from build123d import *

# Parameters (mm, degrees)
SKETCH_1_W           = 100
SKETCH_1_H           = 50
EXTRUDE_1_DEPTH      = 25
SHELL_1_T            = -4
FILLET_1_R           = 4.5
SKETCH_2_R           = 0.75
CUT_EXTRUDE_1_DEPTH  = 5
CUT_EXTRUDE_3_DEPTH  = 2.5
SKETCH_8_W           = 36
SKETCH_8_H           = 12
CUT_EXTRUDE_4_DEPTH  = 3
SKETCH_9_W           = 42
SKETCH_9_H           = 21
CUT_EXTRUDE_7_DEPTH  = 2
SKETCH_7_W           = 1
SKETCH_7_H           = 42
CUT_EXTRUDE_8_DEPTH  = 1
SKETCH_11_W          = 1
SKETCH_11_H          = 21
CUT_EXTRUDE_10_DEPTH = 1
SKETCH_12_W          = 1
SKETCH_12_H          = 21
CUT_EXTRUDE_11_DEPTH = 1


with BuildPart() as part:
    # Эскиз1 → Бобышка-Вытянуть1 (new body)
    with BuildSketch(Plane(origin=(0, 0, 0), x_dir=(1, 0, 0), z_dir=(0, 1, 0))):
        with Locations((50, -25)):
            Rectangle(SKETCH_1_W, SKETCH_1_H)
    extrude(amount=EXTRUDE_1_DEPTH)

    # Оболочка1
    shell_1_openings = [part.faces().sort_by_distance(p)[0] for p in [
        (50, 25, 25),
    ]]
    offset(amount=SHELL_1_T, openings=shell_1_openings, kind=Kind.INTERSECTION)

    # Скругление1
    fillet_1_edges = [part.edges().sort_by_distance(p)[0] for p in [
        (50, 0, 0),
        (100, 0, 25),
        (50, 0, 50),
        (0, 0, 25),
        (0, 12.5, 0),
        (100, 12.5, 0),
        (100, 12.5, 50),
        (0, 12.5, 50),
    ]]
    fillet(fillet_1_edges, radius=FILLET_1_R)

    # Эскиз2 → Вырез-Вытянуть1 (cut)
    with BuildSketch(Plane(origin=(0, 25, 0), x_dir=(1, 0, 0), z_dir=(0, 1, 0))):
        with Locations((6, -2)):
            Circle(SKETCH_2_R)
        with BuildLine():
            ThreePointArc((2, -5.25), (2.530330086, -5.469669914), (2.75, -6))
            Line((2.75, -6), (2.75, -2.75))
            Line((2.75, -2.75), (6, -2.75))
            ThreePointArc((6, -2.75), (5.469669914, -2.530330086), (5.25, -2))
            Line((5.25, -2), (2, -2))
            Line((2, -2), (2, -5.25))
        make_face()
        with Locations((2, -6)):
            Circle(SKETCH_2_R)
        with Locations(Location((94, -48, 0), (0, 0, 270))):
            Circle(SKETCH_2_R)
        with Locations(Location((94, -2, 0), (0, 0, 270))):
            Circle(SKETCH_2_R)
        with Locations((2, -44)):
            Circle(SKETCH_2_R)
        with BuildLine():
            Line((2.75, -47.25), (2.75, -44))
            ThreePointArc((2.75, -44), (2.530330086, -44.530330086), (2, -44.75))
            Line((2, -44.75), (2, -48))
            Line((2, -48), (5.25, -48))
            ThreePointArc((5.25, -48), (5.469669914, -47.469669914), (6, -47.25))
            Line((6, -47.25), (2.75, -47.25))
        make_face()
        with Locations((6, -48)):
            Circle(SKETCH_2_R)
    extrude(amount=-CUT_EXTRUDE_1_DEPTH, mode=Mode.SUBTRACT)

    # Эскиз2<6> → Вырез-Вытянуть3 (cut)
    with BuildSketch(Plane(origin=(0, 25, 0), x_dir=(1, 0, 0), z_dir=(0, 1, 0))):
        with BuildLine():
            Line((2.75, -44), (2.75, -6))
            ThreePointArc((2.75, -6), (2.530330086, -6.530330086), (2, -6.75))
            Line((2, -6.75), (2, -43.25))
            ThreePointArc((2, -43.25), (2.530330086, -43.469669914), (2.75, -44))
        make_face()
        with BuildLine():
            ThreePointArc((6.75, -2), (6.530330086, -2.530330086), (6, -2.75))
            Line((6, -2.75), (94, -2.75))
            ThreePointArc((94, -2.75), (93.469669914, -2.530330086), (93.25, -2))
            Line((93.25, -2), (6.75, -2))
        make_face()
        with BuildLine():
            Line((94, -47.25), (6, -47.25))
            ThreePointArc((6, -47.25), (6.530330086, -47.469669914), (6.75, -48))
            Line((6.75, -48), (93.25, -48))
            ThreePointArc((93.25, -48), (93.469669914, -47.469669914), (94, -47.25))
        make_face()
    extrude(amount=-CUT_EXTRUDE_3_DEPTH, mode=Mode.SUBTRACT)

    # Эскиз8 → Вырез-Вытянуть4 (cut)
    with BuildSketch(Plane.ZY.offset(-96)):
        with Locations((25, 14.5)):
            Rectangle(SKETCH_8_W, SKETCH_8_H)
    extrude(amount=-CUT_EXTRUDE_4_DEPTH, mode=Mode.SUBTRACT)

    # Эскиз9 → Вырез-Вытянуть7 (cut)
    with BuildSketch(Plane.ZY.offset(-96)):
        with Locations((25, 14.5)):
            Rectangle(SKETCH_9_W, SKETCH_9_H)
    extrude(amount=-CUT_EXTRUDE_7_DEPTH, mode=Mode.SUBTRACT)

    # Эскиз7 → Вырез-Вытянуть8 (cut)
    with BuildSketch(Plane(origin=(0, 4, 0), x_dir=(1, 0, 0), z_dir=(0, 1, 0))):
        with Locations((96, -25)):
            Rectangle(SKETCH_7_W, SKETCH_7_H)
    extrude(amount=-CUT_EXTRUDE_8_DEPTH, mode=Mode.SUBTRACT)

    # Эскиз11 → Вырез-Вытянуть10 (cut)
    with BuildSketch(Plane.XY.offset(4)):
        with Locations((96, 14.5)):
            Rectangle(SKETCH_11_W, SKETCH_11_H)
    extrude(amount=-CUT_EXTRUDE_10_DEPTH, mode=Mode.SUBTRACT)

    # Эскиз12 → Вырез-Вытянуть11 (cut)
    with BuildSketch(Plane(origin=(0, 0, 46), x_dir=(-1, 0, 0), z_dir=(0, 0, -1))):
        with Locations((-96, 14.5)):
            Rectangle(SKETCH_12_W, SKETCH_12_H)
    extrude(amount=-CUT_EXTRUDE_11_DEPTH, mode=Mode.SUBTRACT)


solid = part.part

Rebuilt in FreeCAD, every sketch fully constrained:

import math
import FreeCAD as App
import Part
import Sketcher

V = App.Vector


def edges_at(feature, points):
    """Names of the edges that pass closest to the given points."""
    edges = feature.Shape.Edges
    near = lambda p: min(range(len(edges)), key=lambda i: edges[i].distToShape(Part.Vertex(*p))[0])
    return sorted({f"Edge{near(p) + 1}" for p in points})


def faces_at(feature, points):
    """Names of the faces that lie closest to the given points."""
    faces = feature.Shape.Faces
    near = lambda p: min(range(len(faces)), key=lambda i: faces[i].distToShape(Part.Vertex(*p))[0])
    return sorted({f"Face{near(p) + 1}" for p in points})

doc = App.newDocument("Part")
body = doc.addObject("PartDesign::Body", "Body")

sketch1 = body.newObject("Sketcher::SketchObject", "Sketch")
sketch1.AttachmentSupport = (doc.getObject("XZ_Plane"), [""])
sketch1.MapMode = "FlatFace"
sketch1.addGeometry([
    Part.LineSegment(V(0, 0, 0), V(0, 50, 0)),
    Part.LineSegment(V(0, 50, 0), V(100, 50, 0)),
    Part.LineSegment(V(100, 50, 0), V(100, 0, 0)),
    Part.LineSegment(V(100, 0, 0), V(0, 0, 0)),
], False)
sketch1.addConstraint([
    Sketcher.Constraint("Coincident", 0, 2, 1, 1),
    Sketcher.Constraint("Coincident", 1, 2, 2, 1),
    Sketcher.Constraint("Coincident", 2, 2, 3, 1),
    Sketcher.Constraint("Coincident", 3, 2, 0, 1),
    Sketcher.Constraint("Vertical", 0),
    Sketcher.Constraint("Horizontal", 1),
    Sketcher.Constraint("Vertical", 2),
    Sketcher.Constraint("Horizontal", 3),
    Sketcher.Constraint("Coincident", 3, 2, -1, 1),
    Sketcher.Constraint("DistanceX", 1, 1, 1, 2, 100.0),
    Sketcher.Constraint("DistanceY", 0, 1, 0, 2, 50.0),
])
pad1 = body.newObject("PartDesign::Pad", "Pad")
pad1.Profile = sketch1
pad1.Length = 25
pad1.Reversed = True
doc.recompute()

thickness = body.newObject("PartDesign::Thickness", "Thickness")
thickness.Base = (pad1, faces_at(pad1, [(50, 25, 25)]))
thickness.Value = 4
thickness.Reversed = True
thickness.Join = "Intersection"
doc.recompute()

fillet = body.newObject("PartDesign::Fillet", "Fillet")
fillet.Base = (thickness, edges_at(thickness, [
    (50, 0, 0),
    (100, 0, 25),
    (50, 0, 50),
    (0, 0, 25),
    (0, 12.5, 0),
    (100, 12.5, 0),
    (100, 12.5, 50),
    (0, 12.5, 50),
]))
fillet.Radius = 4.5

sketch2 = body.newObject("Sketcher::SketchObject", "Sketch001")
sketch2.AttachmentSupport = (doc.getObject("XZ_Plane"), [""])
sketch2.MapMode = "FlatFace"
sketch2.AttachmentOffset = App.Placement(V(0, 0, -25), App.Rotation())
sketch2.addGeometry([
    Part.LineSegment(V(5.2, 2, 0), V(2, 2, 0)),
    Part.LineSegment(V(2, 2, 0), V(2, 5.2, 0)),
    Part.ArcOfCircle(Part.Circle(V(2, 6, 0), V(0, 0, 1), 0.8), math.radians(0), math.radians(270)),
    Part.LineSegment(V(2.8, 6, 0), V(2.8, 2.8, 0)),
    Part.LineSegment(V(2.8, 2.8, 0), V(6, 2.8, 0)),
    Part.ArcOfCircle(Part.Circle(V(6, 2, 0), V(0, 0, 1), 0.8), math.radians(180), math.radians(450)),
    Part.Circle(V(94, 48, 0), V(0, 0, 1), 0.8),
    Part.Circle(V(94, 2, 0), V(0, 0, 1), 0.8),
    Part.ArcOfCircle(Part.Circle(V(2, 44, 0), V(0, 0, 1), 0.8), math.radians(90), math.radians(360)),
    Part.LineSegment(V(2, 44.8, 0), V(2, 48, 0)),
    Part.LineSegment(V(2, 48, 0), V(5.2, 48, 0)),
    Part.ArcOfCircle(Part.Circle(V(6, 48, 0), V(0, 0, 1), 0.8), math.radians(-90), math.radians(180)),
    Part.LineSegment(V(6, 47.2, 0), V(2.8, 47.2, 0)),
    Part.LineSegment(V(2.8, 47.2, 0), V(2.8, 44, 0)),
], False)
sketch2.addConstraint([
    Sketcher.Constraint("Coincident", 0, 2, 1, 1),
    Sketcher.Constraint("Coincident", 1, 2, 2, 2),
    Sketcher.Constraint("Tangent", 2, 1, 3, 1),
    Sketcher.Constraint("Coincident", 3, 2, 4, 1),
    Sketcher.Constraint("Tangent", 4, 2, 5, 2),
    Sketcher.Constraint("Coincident", 5, 1, 0, 1),
    Sketcher.Constraint("Coincident", 8, 1, 9, 1),
    Sketcher.Constraint("Coincident", 9, 2, 10, 1),
    Sketcher.Constraint("Coincident", 10, 2, 11, 2),
    Sketcher.Constraint("Tangent", 11, 1, 12, 1),
    Sketcher.Constraint("Coincident", 12, 2, 13, 1),
    Sketcher.Constraint("Tangent", 13, 2, 8, 2),
    Sketcher.Constraint("Horizontal", 0),
    Sketcher.Constraint("Vertical", 1),
    Sketcher.Constraint("Vertical", 3),
    Sketcher.Constraint("Horizontal", 4),
    Sketcher.Constraint("Vertical", 9),
    Sketcher.Constraint("Horizontal", 10),
    Sketcher.Constraint("Horizontal", 12),
    Sketcher.Constraint("Vertical", 13),
    Sketcher.Constraint("Equal", 2, 5),
    Sketcher.Constraint("Equal", 5, 6),
    Sketcher.Constraint("Equal", 6, 7),
    Sketcher.Constraint("Equal", 7, 8),
    Sketcher.Constraint("Equal", 8, 11),
    Sketcher.Constraint("Horizontal", 5, 3, 7, 3),
    Sketcher.Constraint("Horizontal", 6, 3, 11, 3),
    Sketcher.Constraint("Horizontal", 7, 3, 0, 2),
    Sketcher.Constraint("Horizontal", 11, 3, 9, 2),
    Sketcher.Constraint("Vertical", 6, 3, 7, 3),
    Sketcher.Constraint("Vertical", 2, 3, 8, 3),
    Sketcher.Constraint("Vertical", 5, 3, 11, 3),
    Sketcher.Constraint("Vertical", 8, 3, 0, 2),
    Sketcher.Constraint("Vertical", 1, 2, 8, 1),
    Sketcher.Constraint("Equal", 12, 1),
    Sketcher.Constraint("Equal", 3, 9),
    Sketcher.Constraint("Diameter", 6, 1.5),
    Sketcher.Constraint("DistanceX", -1, 1, 2, 3, 2.0),
    Sketcher.Constraint("DistanceY", -1, 1, 2, 3, 6.0),
    Sketcher.Constraint("DistanceX", -1, 1, 5, 3, 6.0),
    Sketcher.Constraint("DistanceX", -1, 1, 6, 3, 94.0),
    Sketcher.Constraint("DistanceY", -1, 1, 6, 3, 48.0),
])
pocket1 = body.newObject("PartDesign::Pocket", "Pocket")
pocket1.Profile = sketch2
pocket1.Length = 5
pocket1.Reversed = True

sketch3 = body.newObject("Sketcher::SketchObject", "Sketch002")
sketch3.AttachmentSupport = (doc.getObject("XZ_Plane"), [""])
sketch3.MapMode = "FlatFace"
sketch3.AttachmentOffset = App.Placement(V(0, 0, -25), App.Rotation())
sketch3.addGeometry([
    Part.LineSegment(V(2.8, 44, 0), V(2.8, 6, 0)),
    Part.ArcOfCircle(Part.Circle(V(2, 6, 0), V(0, 0, 1), 0.8), math.radians(0), math.radians(90)),
    Part.LineSegment(V(2, 6.8, 0), V(2, 43.2, 0)),
    Part.ArcOfCircle(Part.Circle(V(2, 44, 0), V(0, 0, 1), 0.8), math.radians(-90), math.radians(0)),
    Part.ArcOfCircle(Part.Circle(V(6, 2, 0), V(0, 0, 1), 0.8), math.radians(0), math.radians(90)),
    Part.LineSegment(V(6, 2.8, 0), V(94, 2.8, 0)),
    Part.ArcOfCircle(Part.Circle(V(94, 2, 0), V(0, 0, 1), 0.8), math.radians(90), math.radians(180)),
    Part.LineSegment(V(93.2, 2, 0), V(6.8, 2, 0)),
    Part.LineSegment(V(94, 47.2, 0), V(6, 47.2, 0)),
    Part.ArcOfCircle(Part.Circle(V(6, 48, 0), V(0, 0, 1), 0.8), math.radians(-90), math.radians(0)),
    Part.LineSegment(V(6.8, 48, 0), V(93.2, 48, 0)),
    Part.ArcOfCircle(Part.Circle(V(94, 48, 0), V(0, 0, 1), 0.8), math.radians(180), math.radians(270)),
], False)
sketch3.addConstraint([
    Sketcher.Constraint("Tangent", 0, 2, 1, 1),
    Sketcher.Constraint("Coincident", 1, 2, 2, 1),
    Sketcher.Constraint("Coincident", 2, 2, 3, 1),
    Sketcher.Constraint("Tangent", 3, 2, 0, 1),
    Sketcher.Constraint("Tangent", 4, 2, 5, 1),
    Sketcher.Constraint("Tangent", 5, 2, 6, 1),
    Sketcher.Constraint("Coincident", 6, 2, 7, 1),
    Sketcher.Constraint("Coincident", 7, 2, 4, 1),
    Sketcher.Constraint("Tangent", 8, 2, 9, 1),
    Sketcher.Constraint("Coincident", 9, 2, 10, 1),
    Sketcher.Constraint("Coincident", 10, 2, 11, 1),
    Sketcher.Constraint("Tangent", 11, 2, 8, 1),
    Sketcher.Constraint("Vertical", 0),
    Sketcher.Constraint("Vertical", 2),
    Sketcher.Constraint("Horizontal", 5),
    Sketcher.Constraint("Horizontal", 7),
    Sketcher.Constraint("Horizontal", 8),
    Sketcher.Constraint("Horizontal", 10),
    Sketcher.Constraint("Equal", 1, 3),
    Sketcher.Constraint("Equal", 3, 4),
    Sketcher.Constraint("Equal", 4, 6),
    Sketcher.Constraint("Equal", 6, 9),
    Sketcher.Constraint("Equal", 9, 11),
    Sketcher.Constraint("Horizontal", 4, 3, 6, 2),
    Sketcher.Constraint("Horizontal", 11, 3, 9, 2),
    Sketcher.Constraint("Vertical", 4, 3, 9, 3),
    Sketcher.Constraint("Vertical", 6, 3, 11, 3),
    Sketcher.Constraint("Vertical", 3, 3, 1, 2),
    Sketcher.Constraint("DistanceX", 5, 1, 5, 2, 88.0),
    Sketcher.Constraint("DistanceY", 0, 2, 0, 1, 38.0),
    Sketcher.Constraint("Radius", 1, 0.75),
    Sketcher.Constraint("DistanceX", -1, 1, 1, 3, 2.0),
    Sketcher.Constraint("DistanceY", -1, 1, 1, 3, 6.0),
    Sketcher.Constraint("DistanceX", -1, 1, 4, 3, 6.0),
    Sketcher.Constraint("DistanceY", -1, 1, 4, 3, 2.0),
    Sketcher.Constraint("DistanceY", -1, 1, 9, 3, 48.0),
])
pocket2 = body.newObject("PartDesign::Pocket", "Pocket001")
pocket2.Profile = sketch3
pocket2.Length = 2.5
pocket2.Reversed = True

sketch4 = body.newObject("Sketcher::SketchObject", "Sketch003")
sketch4.AttachmentSupport = (doc.getObject("YZ_Plane"), [""])
sketch4.MapMode = "FlatFace"
sketch4.AttachmentOffset = App.Placement(V(0, 0, 96), App.Rotation())
sketch4.addGeometry([
    Part.LineSegment(V(20, 7, 0), V(8, 7, 0)),
    Part.LineSegment(V(8, 7, 0), V(8, 43, 0)),
    Part.LineSegment(V(8, 43, 0), V(20, 43, 0)),
    Part.LineSegment(V(20, 43, 0), V(20, 7, 0)),
], False)
sketch4.addConstraint([
    Sketcher.Constraint("Coincident", 0, 2, 1, 1),
    Sketcher.Constraint("Coincident", 1, 2, 2, 1),
    Sketcher.Constraint("Coincident", 2, 2, 3, 1),
    Sketcher.Constraint("Coincident", 3, 2, 0, 1),
    Sketcher.Constraint("Horizontal", 0),
    Sketcher.Constraint("Vertical", 1),
    Sketcher.Constraint("Horizontal", 2),
    Sketcher.Constraint("Vertical", 3),
    Sketcher.Constraint("DistanceX", 0, 2, 0, 1, 12.0),
    Sketcher.Constraint("DistanceY", 1, 1, 1, 2, 36.0),
    Sketcher.Constraint("DistanceY", -1, 1, 0, 2, 7.0),
    Sketcher.Constraint("DistanceX", -1, 1, 0, 2, 8.5),
])
pocket3 = body.newObject("PartDesign::Pocket", "Pocket002")
pocket3.Profile = sketch4
pocket3.Length = 3
pocket3.Reversed = True

sketch5 = body.newObject("Sketcher::SketchObject", "Sketch004")
sketch5.AttachmentSupport = (doc.getObject("YZ_Plane"), [""])
sketch5.MapMode = "FlatFace"
sketch5.AttachmentOffset = App.Placement(V(0, 0, 96), App.Rotation())
sketch5.addGeometry([
    Part.LineSegment(V(25, 4, 0), V(4, 4, 0)),
    Part.LineSegment(V(4, 4, 0), V(4, 46, 0)),
    Part.LineSegment(V(4, 46, 0), V(25, 46, 0)),
    Part.LineSegment(V(25, 46, 0), V(25, 4, 0)),
], False)
sketch5.addConstraint([
    Sketcher.Constraint("Coincident", 0, 2, 1, 1),
    Sketcher.Constraint("Coincident", 1, 2, 2, 1),
    Sketcher.Constraint("Coincident", 2, 2, 3, 1),
    Sketcher.Constraint("Coincident", 3, 2, 0, 1),
    Sketcher.Constraint("Horizontal", 0),
    Sketcher.Constraint("Vertical", 1),
    Sketcher.Constraint("Horizontal", 2),
    Sketcher.Constraint("Vertical", 3),
    Sketcher.Constraint("DistanceX", 0, 2, 0, 1, 21.0),
    Sketcher.Constraint("DistanceY", 1, 1, 1, 2, 42.0),
    Sketcher.Constraint("DistanceX", -1, 1, 0, 2, 4.0),
    Sketcher.Constraint("DistanceY", -1, 1, 0, 2, 4.0),
])
pocket4 = body.newObject("PartDesign::Pocket", "Pocket003")
pocket4.Profile = sketch5
pocket4.Length = 2
pocket4.Reversed = True

sketch6 = body.newObject("Sketcher::SketchObject", "Sketch005")
sketch6.AttachmentSupport = (doc.getObject("XZ_Plane"), [""])
sketch6.MapMode = "FlatFace"
sketch6.AttachmentOffset = App.Placement(V(0, 0, -4), App.Rotation())
sketch6.addGeometry([
    Part.LineSegment(V(95.5, 4, 0), V(95.5, 46, 0)),
    Part.LineSegment(V(95.5, 46, 0), V(96.5, 46, 0)),
    Part.LineSegment(V(96.5, 46, 0), V(96.5, 4, 0)),
    Part.LineSegment(V(96.5, 4, 0), V(95.5, 4, 0)),
], False)
sketch6.addConstraint([
    Sketcher.Constraint("Coincident", 0, 2, 1, 1),
    Sketcher.Constraint("Coincident", 1, 2, 2, 1),
    Sketcher.Constraint("Coincident", 2, 2, 3, 1),
    Sketcher.Constraint("Coincident", 3, 2, 0, 1),
    Sketcher.Constraint("Vertical", 0),
    Sketcher.Constraint("Horizontal", 1),
    Sketcher.Constraint("Vertical", 2),
    Sketcher.Constraint("Horizontal", 3),
    Sketcher.Constraint("DistanceX", 1, 1, 1, 2, 1.0),
    Sketcher.Constraint("DistanceY", 0, 1, 0, 2, 42.0),
    Sketcher.Constraint("DistanceY", -1, 1, 0, 2, 46.0),
    Sketcher.Constraint("DistanceX", -1, 1, 0, 2, 95.5),
])
pocket5 = body.newObject("PartDesign::Pocket", "Pocket004")
pocket5.Profile = sketch6
pocket5.Length = 1
pocket5.Reversed = True

sketch7 = body.newObject("Sketcher::SketchObject", "Sketch006")
sketch7.AttachmentSupport = (doc.getObject("XY_Plane"), [""])
sketch7.MapMode = "FlatFace"
sketch7.AttachmentOffset = App.Placement(V(0, 0, 4), App.Rotation())
sketch7.addGeometry([
    Part.LineSegment(V(95.5, 25, 0), V(95.5, 4, 0)),
    Part.LineSegment(V(95.5, 4, 0), V(96.5, 4, 0)),
    Part.LineSegment(V(96.5, 4, 0), V(96.5, 25, 0)),
    Part.LineSegment(V(96.5, 25, 0), V(95.5, 25, 0)),
], False)
sketch7.addConstraint([
    Sketcher.Constraint("Coincident", 0, 2, 1, 1),
    Sketcher.Constraint("Coincident", 1, 2, 2, 1),
    Sketcher.Constraint("Coincident", 2, 2, 3, 1),
    Sketcher.Constraint("Coincident", 3, 2, 0, 1),
    Sketcher.Constraint("Vertical", 0),
    Sketcher.Constraint("Horizontal", 1),
    Sketcher.Constraint("Vertical", 2),
    Sketcher.Constraint("Horizontal", 3),
    Sketcher.Constraint("DistanceX", 1, 1, 1, 2, 1.0),
    Sketcher.Constraint("DistanceY", 0, 2, 0, 1, 21.0),
    Sketcher.Constraint("DistanceY", -1, 1, 0, 2, 4.0),
    Sketcher.Constraint("DistanceX", -1, 1, 0, 2, 95.5),
])
pocket6 = body.newObject("PartDesign::Pocket", "Pocket005")
pocket6.Profile = sketch7
pocket6.Length = 1

sketch8 = body.newObject("Sketcher::SketchObject", "Sketch007")
sketch8.AttachmentSupport = (doc.getObject("XY_Plane"), [""])
sketch8.MapMode = "FlatFace"
sketch8.AttachmentOffset = App.Placement(V(0, 0, 46), App.Rotation())
sketch8.addGeometry([
    Part.LineSegment(V(96.5, 25, 0), V(96.5, 4, 0)),
    Part.LineSegment(V(96.5, 4, 0), V(95.5, 4, 0)),
    Part.LineSegment(V(95.5, 4, 0), V(95.5, 25, 0)),
    Part.LineSegment(V(95.5, 25, 0), V(96.5, 25, 0)),
], False)
sketch8.addConstraint([
    Sketcher.Constraint("Coincident", 0, 2, 1, 1),
    Sketcher.Constraint("Coincident", 1, 2, 2, 1),
    Sketcher.Constraint("Coincident", 2, 2, 3, 1),
    Sketcher.Constraint("Coincident", 3, 2, 0, 1),
    Sketcher.Constraint("Vertical", 0),
    Sketcher.Constraint("Horizontal", 1),
    Sketcher.Constraint("Vertical", 2),
    Sketcher.Constraint("Horizontal", 3),
    Sketcher.Constraint("DistanceX", 1, 2, 1, 1, 1.0),
    Sketcher.Constraint("DistanceY", 0, 2, 0, 1, 21.0),
    Sketcher.Constraint("DistanceY", -1, 1, 0, 2, 4.0),
    Sketcher.Constraint("DistanceX", -1, 1, 0, 2, 96.5),
])
pocket7 = body.newObject("PartDesign::Pocket", "Pocket006")
pocket7.Profile = sketch8
pocket7.Length = 1
pocket7.Reversed = True

doc.recompute()
